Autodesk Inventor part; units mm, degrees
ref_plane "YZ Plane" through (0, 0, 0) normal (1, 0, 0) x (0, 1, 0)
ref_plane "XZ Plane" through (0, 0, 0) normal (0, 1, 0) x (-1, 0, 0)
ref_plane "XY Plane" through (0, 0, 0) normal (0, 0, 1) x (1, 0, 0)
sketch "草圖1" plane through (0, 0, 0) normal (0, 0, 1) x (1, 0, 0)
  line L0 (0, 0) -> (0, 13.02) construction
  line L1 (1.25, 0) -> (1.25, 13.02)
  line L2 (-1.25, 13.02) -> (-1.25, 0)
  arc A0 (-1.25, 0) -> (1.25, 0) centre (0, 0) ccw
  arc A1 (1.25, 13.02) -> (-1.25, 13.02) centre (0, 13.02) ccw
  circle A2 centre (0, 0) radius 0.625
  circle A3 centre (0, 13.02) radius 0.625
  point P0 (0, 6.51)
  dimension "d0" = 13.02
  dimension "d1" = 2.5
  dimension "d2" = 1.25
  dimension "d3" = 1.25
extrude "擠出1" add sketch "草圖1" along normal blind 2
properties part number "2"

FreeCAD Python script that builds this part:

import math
import FreeCAD as App
import Part
import Sketcher

doc = App.newDocument("Part")
body = doc.addObject("PartDesign::Body", "Body")

sketch1 = body.newObject("Sketcher::SketchObject", "Sketch")
sketch1.AttachmentSupport = (doc.getObject("XY_Plane"), [""])
sketch1.MapMode = "FlatFace"
sketch1.addGeometry(Part.ArcOfCircle(Part.Circle(App.Vector(0, 0, 0), App.Vector(0, 0, 1), 1.2), math.radians(180), math.radians(360)), False)
sketch1.addGeometry(Part.LineSegment(App.Vector(1.2, 0, 0), App.Vector(1.2, 13, 0)), False)
sketch1.addGeometry(Part.ArcOfCircle(Part.Circle(App.Vector(0, 13, 0), App.Vector(0, 0, 1), 1.2), math.radians(0), math.radians(180)), False)
sketch1.addGeometry(Part.LineSegment(App.Vector(-1.2, 13, 0), App.Vector(-1.2, 0, 0)), False)
sketch1.addGeometry(Part.Circle(App.Vector(0, 0, 0), App.Vector(0, 0, 1), 0.6), False)
sketch1.addGeometry(Part.Circle(App.Vector(0, 13, 0), App.Vector(0, 0, 1), 0.6), False)
sketch1.addConstraint(Sketcher.Constraint("Tangent", 0, 2, 1, 1))
sketch1.addConstraint(Sketcher.Constraint("Tangent", 1, 2, 2, 1))
sketch1.addConstraint(Sketcher.Constraint("Tangent", 2, 2, 3, 1))
sketch1.addConstraint(Sketcher.Constraint("Tangent", 3, 2, 0, 1))
sketch1.addConstraint(Sketcher.Constraint("Vertical", 1))
sketch1.addConstraint(Sketcher.Constraint("Vertical", 3))
sketch1.addConstraint(Sketcher.Constraint("Coincident", 0, 3, -1, 1))
sketch1.addConstraint(Sketcher.Constraint("Coincident", 4, 3, -1, 1))
sketch1.addConstraint(Sketcher.Constraint("Coincident", 5, 3, 2, 3))
sketch1.addConstraint(Sketcher.Constraint("Equal", 4, 5))
sketch1.addConstraint(Sketcher.Constraint("Diameter", 4, 1.25))
sketch1.addConstraint(Sketcher.Constraint("Radius", 0, 1.25))
sketch1.addConstraint(Sketcher.Constraint("DistanceY", 1, 1, 1, 2, 13.02))
pad1 = body.newObject("PartDesign::Pad", "Pad")
pad1.Profile = sketch1
pad1.Length = 2

doc.recompute()
